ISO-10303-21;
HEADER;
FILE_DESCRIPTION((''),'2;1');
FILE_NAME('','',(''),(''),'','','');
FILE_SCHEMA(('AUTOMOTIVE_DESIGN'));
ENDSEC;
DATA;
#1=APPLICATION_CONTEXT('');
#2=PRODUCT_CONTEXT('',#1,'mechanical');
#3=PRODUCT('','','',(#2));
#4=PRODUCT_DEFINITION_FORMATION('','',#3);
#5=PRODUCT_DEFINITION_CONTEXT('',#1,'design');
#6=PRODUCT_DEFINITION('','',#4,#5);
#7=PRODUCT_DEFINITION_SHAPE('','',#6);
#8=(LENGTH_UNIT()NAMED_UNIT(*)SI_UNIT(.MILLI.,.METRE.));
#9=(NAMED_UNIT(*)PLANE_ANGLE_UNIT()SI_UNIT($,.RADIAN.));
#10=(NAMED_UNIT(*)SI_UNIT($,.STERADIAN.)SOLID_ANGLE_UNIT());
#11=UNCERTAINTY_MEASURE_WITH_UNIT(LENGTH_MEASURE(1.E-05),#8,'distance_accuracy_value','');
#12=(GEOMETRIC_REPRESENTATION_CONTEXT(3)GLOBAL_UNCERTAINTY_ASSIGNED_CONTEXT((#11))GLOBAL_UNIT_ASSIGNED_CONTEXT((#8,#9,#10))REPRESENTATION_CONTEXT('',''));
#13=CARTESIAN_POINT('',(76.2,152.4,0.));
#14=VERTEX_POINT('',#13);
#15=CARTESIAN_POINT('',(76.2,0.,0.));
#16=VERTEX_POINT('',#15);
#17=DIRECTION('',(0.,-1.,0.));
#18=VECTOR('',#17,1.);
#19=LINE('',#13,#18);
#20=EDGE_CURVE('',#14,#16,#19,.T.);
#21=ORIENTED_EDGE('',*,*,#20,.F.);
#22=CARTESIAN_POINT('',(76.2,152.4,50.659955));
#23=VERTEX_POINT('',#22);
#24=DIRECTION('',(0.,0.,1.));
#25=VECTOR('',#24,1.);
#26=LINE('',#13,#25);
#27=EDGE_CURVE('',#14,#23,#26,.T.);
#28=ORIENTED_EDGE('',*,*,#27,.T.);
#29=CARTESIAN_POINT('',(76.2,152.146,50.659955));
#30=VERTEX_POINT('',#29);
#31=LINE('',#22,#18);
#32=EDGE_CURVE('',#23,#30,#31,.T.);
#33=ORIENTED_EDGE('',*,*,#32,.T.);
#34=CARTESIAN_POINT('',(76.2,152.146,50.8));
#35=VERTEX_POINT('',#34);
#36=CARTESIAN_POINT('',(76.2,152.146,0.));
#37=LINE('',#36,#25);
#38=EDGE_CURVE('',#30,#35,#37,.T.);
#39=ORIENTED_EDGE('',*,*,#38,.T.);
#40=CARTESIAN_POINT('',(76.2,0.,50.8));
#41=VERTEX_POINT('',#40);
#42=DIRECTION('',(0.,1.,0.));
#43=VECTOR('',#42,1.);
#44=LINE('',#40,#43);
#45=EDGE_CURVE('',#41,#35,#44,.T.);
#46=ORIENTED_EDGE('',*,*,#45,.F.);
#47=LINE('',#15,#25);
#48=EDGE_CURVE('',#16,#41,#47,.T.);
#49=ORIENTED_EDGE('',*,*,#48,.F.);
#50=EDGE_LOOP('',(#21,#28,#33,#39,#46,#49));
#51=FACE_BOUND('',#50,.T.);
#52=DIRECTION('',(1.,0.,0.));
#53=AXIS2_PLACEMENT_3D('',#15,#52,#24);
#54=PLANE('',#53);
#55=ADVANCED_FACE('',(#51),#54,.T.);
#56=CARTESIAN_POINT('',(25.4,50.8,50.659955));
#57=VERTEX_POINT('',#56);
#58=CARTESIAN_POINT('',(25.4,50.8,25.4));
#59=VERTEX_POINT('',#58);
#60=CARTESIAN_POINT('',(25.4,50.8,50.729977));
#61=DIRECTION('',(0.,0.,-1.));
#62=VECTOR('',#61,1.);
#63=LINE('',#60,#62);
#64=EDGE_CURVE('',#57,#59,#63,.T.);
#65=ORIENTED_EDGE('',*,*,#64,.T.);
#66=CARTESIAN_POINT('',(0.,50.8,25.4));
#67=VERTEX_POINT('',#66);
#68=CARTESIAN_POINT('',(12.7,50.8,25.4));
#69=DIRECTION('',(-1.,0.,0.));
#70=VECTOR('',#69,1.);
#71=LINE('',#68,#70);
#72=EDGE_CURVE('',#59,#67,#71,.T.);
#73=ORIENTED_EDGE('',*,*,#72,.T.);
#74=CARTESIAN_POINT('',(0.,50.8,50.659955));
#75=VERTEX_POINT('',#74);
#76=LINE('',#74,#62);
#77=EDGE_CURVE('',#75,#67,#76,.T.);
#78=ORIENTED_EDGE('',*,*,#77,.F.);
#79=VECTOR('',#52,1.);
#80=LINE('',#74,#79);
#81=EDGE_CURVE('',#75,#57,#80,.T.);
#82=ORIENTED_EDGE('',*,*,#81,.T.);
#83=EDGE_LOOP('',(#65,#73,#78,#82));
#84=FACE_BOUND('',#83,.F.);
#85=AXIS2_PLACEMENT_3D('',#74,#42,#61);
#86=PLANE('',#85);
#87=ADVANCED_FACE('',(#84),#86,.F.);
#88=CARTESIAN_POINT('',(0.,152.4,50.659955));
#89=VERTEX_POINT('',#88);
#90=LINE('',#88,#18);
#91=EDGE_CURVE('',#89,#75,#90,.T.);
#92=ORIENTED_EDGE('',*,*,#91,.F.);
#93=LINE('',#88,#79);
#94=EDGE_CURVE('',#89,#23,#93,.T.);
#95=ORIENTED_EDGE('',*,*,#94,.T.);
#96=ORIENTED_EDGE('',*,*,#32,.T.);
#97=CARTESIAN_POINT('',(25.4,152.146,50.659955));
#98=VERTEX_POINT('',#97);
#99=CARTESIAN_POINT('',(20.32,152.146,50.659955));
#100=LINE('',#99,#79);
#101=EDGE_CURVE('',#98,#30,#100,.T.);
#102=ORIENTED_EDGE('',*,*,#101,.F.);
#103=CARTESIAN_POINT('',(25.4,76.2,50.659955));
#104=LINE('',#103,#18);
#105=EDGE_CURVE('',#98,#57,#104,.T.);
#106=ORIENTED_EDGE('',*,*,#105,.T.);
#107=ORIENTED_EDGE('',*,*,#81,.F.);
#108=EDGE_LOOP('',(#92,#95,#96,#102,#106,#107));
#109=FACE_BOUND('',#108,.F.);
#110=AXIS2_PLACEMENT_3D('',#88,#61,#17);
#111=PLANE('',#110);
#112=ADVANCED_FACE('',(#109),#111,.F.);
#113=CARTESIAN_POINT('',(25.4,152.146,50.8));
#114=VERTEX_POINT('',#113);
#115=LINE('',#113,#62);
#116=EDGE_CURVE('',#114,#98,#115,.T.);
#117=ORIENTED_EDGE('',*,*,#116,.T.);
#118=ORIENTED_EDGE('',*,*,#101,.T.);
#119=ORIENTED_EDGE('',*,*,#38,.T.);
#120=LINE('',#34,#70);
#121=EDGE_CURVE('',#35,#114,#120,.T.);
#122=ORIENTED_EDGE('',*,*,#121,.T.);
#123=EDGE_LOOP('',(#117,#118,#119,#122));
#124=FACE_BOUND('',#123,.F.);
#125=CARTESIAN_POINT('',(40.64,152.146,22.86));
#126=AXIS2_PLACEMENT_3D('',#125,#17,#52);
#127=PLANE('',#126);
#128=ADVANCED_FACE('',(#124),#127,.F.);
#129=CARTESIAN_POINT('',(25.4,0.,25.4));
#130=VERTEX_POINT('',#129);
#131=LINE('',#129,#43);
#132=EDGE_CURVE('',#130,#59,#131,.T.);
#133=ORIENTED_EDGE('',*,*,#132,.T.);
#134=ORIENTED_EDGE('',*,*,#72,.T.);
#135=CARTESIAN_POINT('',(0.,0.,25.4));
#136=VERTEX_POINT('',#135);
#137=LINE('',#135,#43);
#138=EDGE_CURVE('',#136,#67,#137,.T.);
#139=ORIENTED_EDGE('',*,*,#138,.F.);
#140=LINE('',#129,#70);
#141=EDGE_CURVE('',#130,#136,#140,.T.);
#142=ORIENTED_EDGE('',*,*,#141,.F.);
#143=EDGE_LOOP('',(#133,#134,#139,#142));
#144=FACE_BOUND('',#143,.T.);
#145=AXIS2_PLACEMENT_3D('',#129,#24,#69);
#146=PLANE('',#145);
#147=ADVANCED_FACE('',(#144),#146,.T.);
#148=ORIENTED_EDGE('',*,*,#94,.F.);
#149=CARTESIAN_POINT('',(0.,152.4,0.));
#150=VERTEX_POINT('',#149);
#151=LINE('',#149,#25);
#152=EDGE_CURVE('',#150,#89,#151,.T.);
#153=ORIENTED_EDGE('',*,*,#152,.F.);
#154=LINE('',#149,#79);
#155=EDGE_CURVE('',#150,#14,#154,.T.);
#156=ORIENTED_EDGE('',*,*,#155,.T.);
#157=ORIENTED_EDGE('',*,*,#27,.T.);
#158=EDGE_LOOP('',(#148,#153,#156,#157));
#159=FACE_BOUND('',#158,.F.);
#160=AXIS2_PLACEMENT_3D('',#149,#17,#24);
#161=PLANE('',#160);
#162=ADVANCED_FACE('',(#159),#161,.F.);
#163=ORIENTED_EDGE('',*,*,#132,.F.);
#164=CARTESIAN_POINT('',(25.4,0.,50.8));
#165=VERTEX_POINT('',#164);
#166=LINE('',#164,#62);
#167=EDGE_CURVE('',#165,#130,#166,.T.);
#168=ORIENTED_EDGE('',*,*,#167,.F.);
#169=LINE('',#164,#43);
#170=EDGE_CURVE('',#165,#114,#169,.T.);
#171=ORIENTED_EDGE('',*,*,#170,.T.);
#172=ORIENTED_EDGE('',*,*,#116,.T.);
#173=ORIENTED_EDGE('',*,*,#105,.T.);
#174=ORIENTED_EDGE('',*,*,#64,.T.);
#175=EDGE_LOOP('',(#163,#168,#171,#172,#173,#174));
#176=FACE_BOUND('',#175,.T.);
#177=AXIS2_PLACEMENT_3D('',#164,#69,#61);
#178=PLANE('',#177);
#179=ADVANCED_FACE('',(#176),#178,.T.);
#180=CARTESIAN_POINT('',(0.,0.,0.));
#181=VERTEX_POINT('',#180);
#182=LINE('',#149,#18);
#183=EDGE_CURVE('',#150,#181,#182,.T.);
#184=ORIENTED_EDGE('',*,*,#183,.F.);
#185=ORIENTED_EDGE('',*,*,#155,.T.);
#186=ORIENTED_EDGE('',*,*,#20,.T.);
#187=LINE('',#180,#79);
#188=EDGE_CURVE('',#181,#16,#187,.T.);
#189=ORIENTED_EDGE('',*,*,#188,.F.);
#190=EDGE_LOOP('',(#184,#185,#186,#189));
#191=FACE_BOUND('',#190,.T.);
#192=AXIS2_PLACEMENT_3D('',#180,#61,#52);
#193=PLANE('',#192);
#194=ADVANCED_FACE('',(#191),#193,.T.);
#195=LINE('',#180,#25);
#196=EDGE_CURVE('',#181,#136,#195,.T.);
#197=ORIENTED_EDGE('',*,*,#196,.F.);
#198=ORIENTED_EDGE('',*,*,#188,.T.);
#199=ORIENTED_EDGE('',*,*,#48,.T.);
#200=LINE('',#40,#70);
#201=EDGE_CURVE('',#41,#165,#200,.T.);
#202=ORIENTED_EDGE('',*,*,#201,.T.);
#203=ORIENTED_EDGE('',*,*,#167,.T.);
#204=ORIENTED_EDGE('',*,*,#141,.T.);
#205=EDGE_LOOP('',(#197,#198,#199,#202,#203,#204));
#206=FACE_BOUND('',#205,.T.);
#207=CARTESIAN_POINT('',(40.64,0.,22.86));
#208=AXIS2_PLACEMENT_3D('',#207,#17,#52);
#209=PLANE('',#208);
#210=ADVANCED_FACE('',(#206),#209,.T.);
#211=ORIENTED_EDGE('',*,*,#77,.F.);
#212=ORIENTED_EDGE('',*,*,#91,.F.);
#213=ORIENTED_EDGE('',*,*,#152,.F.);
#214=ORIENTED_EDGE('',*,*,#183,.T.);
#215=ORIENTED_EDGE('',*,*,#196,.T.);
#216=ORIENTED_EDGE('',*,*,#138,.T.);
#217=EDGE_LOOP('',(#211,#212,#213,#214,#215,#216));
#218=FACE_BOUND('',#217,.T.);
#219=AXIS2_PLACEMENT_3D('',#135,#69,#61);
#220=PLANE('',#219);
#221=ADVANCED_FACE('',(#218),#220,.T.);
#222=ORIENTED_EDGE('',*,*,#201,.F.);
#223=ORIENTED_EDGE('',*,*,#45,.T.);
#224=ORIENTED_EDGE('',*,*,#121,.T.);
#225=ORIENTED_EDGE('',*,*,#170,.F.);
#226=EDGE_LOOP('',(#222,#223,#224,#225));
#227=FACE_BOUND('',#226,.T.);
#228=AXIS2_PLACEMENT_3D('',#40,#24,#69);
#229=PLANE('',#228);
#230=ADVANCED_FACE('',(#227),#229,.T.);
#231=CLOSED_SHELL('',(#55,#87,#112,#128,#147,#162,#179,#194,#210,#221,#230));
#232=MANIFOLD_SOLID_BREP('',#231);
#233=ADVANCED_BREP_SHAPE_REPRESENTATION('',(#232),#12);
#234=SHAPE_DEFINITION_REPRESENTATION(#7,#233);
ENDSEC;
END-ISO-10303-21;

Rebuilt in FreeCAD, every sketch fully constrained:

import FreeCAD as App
import Part
import Sketcher
Q = App.Units.Quantity


def add_polygon(sketch, points):
    """Adds a closed chain of lines whose ends are joined by coincident constraints."""
    first, n = sketch.GeometryCount, len(points)
    for a, b in zip(points, points[1:] + points[:1]):
        sketch.addGeometry(Part.LineSegment(App.Vector(*a, 0), App.Vector(*b, 0)), False)
    for i in range(n):
        sketch.addConstraint(Sketcher.Constraint("Coincident", first + i, 2, first + (i + 1) % n, 1))

doc = App.newDocument("Part")
params = doc.addObject("Spreadsheet::Sheet", "Params")
for row, (alias, value) in enumerate([
    ("sketch1_width", "3 in"),
    ("pad1_length", "5.99 in"),
    ("sketch2_width", "2 in"),
    ("sketch2_width2", "6 in"),
    ("sketch2_height", "1 in"),
    ("pad2_length", "3 in"),
], start=1):
    params.set(f"A{row}", alias)
    params.set(f"B{row}", "=" + value)
    params.setAlias(f"B{row}", alias)

body = doc.addObject("PartDesign::Body", "Body")

# Sketch on XZ plane
sketch1 = body.newObject("Sketcher::SketchObject", "Sketch")
sketch1.AttachmentSupport = (doc.getObject("XZ_Plane"), [""])
sketch1.MapMode = "FlatFace"
add_polygon(sketch1, [(0, 25), (0, 0), (76, 0), (76, 51), (25, 51), (25, 25)])  # lines 0-5
sketch1.addConstraint(Sketcher.Constraint("Vertical", 0))
sketch1.addConstraint(Sketcher.Constraint("Horizontal", 1))
sketch1.addConstraint(Sketcher.Constraint("Vertical", 2))
sketch1.addConstraint(Sketcher.Constraint("Horizontal", 3))
sketch1.addConstraint(Sketcher.Constraint("Vertical", 4))
sketch1.addConstraint(Sketcher.Constraint("Horizontal", 5))
sketch1.addConstraint(Sketcher.Constraint("Coincident", 0, 2, -1, 1))
sketch1.addConstraint(Sketcher.Constraint("Equal", 5, 0))
sketch1.addConstraint(Sketcher.Constraint("Equal", 3, 2))
sketch1.addConstraint(Sketcher.Constraint("Equal", 0, 4))
sketch1.addConstraint(Sketcher.Constraint("DistanceX", 1, 1, 1, 2, Q("3 in")))
sketch1.setExpression("Constraints[16]", "Params.sketch1_width")
pad1 = body.newObject("PartDesign::Pad", "Pad")
pad1.Profile = sketch1
pad1.setExpression("Length", "Params.pad1_length")
pad1.Reversed = True

# Sketch on YZ plane
sketch2 = body.newObject("Sketcher::SketchObject", "Sketch001")
sketch2.AttachmentSupport = (doc.getObject("YZ_Plane"), [""])
sketch2.MapMode = "FlatFace"
add_polygon(sketch2, [(51, 25), (0, 25), (0, 0), (152, 0), (152, 51), (51, 51)])  # lines 0-5
sketch2.addConstraint(Sketcher.Constraint("Horizontal", 0))
sketch2.addConstraint(Sketcher.Constraint("Vertical", 1))
sketch2.addConstraint(Sketcher.Constraint("Horizontal", 2))
sketch2.addConstraint(Sketcher.Constraint("Vertical", 3))
sketch2.addConstraint(Sketcher.Constraint("Horizontal", 4))
sketch2.addConstraint(Sketcher.Constraint("Vertical", 5))
sketch2.addConstraint(Sketcher.Constraint("Coincident", 1, 2, -1, 1))
sketch2.addConstraint(Sketcher.Constraint("DistanceX", 0, 2, 0, 1, Q("2 in")))
sketch2.addConstraint(Sketcher.Constraint("DistanceX", 2, 1, 2, 2, Q("6 in")))
sketch2.addConstraint(Sketcher.Constraint("DistanceY", 5, 2, 5, 1, Q("1 in")))
sketch2.addConstraint(Sketcher.Constraint("DistanceY", 1, 2, 1, 1, 25.259955))
sketch2.setExpression("Constraints[13]", "Params.sketch2_width")
sketch2.setExpression("Constraints[14]", "Params.sketch2_width2")
sketch2.setExpression("Constraints[15]", "Params.sketch2_height")
pad2 = body.newObject("PartDesign::Pad", "Pad001")
pad2.Profile = sketch2
pad2.setExpression("Length", "Params.pad2_length")

doc.recompute()
